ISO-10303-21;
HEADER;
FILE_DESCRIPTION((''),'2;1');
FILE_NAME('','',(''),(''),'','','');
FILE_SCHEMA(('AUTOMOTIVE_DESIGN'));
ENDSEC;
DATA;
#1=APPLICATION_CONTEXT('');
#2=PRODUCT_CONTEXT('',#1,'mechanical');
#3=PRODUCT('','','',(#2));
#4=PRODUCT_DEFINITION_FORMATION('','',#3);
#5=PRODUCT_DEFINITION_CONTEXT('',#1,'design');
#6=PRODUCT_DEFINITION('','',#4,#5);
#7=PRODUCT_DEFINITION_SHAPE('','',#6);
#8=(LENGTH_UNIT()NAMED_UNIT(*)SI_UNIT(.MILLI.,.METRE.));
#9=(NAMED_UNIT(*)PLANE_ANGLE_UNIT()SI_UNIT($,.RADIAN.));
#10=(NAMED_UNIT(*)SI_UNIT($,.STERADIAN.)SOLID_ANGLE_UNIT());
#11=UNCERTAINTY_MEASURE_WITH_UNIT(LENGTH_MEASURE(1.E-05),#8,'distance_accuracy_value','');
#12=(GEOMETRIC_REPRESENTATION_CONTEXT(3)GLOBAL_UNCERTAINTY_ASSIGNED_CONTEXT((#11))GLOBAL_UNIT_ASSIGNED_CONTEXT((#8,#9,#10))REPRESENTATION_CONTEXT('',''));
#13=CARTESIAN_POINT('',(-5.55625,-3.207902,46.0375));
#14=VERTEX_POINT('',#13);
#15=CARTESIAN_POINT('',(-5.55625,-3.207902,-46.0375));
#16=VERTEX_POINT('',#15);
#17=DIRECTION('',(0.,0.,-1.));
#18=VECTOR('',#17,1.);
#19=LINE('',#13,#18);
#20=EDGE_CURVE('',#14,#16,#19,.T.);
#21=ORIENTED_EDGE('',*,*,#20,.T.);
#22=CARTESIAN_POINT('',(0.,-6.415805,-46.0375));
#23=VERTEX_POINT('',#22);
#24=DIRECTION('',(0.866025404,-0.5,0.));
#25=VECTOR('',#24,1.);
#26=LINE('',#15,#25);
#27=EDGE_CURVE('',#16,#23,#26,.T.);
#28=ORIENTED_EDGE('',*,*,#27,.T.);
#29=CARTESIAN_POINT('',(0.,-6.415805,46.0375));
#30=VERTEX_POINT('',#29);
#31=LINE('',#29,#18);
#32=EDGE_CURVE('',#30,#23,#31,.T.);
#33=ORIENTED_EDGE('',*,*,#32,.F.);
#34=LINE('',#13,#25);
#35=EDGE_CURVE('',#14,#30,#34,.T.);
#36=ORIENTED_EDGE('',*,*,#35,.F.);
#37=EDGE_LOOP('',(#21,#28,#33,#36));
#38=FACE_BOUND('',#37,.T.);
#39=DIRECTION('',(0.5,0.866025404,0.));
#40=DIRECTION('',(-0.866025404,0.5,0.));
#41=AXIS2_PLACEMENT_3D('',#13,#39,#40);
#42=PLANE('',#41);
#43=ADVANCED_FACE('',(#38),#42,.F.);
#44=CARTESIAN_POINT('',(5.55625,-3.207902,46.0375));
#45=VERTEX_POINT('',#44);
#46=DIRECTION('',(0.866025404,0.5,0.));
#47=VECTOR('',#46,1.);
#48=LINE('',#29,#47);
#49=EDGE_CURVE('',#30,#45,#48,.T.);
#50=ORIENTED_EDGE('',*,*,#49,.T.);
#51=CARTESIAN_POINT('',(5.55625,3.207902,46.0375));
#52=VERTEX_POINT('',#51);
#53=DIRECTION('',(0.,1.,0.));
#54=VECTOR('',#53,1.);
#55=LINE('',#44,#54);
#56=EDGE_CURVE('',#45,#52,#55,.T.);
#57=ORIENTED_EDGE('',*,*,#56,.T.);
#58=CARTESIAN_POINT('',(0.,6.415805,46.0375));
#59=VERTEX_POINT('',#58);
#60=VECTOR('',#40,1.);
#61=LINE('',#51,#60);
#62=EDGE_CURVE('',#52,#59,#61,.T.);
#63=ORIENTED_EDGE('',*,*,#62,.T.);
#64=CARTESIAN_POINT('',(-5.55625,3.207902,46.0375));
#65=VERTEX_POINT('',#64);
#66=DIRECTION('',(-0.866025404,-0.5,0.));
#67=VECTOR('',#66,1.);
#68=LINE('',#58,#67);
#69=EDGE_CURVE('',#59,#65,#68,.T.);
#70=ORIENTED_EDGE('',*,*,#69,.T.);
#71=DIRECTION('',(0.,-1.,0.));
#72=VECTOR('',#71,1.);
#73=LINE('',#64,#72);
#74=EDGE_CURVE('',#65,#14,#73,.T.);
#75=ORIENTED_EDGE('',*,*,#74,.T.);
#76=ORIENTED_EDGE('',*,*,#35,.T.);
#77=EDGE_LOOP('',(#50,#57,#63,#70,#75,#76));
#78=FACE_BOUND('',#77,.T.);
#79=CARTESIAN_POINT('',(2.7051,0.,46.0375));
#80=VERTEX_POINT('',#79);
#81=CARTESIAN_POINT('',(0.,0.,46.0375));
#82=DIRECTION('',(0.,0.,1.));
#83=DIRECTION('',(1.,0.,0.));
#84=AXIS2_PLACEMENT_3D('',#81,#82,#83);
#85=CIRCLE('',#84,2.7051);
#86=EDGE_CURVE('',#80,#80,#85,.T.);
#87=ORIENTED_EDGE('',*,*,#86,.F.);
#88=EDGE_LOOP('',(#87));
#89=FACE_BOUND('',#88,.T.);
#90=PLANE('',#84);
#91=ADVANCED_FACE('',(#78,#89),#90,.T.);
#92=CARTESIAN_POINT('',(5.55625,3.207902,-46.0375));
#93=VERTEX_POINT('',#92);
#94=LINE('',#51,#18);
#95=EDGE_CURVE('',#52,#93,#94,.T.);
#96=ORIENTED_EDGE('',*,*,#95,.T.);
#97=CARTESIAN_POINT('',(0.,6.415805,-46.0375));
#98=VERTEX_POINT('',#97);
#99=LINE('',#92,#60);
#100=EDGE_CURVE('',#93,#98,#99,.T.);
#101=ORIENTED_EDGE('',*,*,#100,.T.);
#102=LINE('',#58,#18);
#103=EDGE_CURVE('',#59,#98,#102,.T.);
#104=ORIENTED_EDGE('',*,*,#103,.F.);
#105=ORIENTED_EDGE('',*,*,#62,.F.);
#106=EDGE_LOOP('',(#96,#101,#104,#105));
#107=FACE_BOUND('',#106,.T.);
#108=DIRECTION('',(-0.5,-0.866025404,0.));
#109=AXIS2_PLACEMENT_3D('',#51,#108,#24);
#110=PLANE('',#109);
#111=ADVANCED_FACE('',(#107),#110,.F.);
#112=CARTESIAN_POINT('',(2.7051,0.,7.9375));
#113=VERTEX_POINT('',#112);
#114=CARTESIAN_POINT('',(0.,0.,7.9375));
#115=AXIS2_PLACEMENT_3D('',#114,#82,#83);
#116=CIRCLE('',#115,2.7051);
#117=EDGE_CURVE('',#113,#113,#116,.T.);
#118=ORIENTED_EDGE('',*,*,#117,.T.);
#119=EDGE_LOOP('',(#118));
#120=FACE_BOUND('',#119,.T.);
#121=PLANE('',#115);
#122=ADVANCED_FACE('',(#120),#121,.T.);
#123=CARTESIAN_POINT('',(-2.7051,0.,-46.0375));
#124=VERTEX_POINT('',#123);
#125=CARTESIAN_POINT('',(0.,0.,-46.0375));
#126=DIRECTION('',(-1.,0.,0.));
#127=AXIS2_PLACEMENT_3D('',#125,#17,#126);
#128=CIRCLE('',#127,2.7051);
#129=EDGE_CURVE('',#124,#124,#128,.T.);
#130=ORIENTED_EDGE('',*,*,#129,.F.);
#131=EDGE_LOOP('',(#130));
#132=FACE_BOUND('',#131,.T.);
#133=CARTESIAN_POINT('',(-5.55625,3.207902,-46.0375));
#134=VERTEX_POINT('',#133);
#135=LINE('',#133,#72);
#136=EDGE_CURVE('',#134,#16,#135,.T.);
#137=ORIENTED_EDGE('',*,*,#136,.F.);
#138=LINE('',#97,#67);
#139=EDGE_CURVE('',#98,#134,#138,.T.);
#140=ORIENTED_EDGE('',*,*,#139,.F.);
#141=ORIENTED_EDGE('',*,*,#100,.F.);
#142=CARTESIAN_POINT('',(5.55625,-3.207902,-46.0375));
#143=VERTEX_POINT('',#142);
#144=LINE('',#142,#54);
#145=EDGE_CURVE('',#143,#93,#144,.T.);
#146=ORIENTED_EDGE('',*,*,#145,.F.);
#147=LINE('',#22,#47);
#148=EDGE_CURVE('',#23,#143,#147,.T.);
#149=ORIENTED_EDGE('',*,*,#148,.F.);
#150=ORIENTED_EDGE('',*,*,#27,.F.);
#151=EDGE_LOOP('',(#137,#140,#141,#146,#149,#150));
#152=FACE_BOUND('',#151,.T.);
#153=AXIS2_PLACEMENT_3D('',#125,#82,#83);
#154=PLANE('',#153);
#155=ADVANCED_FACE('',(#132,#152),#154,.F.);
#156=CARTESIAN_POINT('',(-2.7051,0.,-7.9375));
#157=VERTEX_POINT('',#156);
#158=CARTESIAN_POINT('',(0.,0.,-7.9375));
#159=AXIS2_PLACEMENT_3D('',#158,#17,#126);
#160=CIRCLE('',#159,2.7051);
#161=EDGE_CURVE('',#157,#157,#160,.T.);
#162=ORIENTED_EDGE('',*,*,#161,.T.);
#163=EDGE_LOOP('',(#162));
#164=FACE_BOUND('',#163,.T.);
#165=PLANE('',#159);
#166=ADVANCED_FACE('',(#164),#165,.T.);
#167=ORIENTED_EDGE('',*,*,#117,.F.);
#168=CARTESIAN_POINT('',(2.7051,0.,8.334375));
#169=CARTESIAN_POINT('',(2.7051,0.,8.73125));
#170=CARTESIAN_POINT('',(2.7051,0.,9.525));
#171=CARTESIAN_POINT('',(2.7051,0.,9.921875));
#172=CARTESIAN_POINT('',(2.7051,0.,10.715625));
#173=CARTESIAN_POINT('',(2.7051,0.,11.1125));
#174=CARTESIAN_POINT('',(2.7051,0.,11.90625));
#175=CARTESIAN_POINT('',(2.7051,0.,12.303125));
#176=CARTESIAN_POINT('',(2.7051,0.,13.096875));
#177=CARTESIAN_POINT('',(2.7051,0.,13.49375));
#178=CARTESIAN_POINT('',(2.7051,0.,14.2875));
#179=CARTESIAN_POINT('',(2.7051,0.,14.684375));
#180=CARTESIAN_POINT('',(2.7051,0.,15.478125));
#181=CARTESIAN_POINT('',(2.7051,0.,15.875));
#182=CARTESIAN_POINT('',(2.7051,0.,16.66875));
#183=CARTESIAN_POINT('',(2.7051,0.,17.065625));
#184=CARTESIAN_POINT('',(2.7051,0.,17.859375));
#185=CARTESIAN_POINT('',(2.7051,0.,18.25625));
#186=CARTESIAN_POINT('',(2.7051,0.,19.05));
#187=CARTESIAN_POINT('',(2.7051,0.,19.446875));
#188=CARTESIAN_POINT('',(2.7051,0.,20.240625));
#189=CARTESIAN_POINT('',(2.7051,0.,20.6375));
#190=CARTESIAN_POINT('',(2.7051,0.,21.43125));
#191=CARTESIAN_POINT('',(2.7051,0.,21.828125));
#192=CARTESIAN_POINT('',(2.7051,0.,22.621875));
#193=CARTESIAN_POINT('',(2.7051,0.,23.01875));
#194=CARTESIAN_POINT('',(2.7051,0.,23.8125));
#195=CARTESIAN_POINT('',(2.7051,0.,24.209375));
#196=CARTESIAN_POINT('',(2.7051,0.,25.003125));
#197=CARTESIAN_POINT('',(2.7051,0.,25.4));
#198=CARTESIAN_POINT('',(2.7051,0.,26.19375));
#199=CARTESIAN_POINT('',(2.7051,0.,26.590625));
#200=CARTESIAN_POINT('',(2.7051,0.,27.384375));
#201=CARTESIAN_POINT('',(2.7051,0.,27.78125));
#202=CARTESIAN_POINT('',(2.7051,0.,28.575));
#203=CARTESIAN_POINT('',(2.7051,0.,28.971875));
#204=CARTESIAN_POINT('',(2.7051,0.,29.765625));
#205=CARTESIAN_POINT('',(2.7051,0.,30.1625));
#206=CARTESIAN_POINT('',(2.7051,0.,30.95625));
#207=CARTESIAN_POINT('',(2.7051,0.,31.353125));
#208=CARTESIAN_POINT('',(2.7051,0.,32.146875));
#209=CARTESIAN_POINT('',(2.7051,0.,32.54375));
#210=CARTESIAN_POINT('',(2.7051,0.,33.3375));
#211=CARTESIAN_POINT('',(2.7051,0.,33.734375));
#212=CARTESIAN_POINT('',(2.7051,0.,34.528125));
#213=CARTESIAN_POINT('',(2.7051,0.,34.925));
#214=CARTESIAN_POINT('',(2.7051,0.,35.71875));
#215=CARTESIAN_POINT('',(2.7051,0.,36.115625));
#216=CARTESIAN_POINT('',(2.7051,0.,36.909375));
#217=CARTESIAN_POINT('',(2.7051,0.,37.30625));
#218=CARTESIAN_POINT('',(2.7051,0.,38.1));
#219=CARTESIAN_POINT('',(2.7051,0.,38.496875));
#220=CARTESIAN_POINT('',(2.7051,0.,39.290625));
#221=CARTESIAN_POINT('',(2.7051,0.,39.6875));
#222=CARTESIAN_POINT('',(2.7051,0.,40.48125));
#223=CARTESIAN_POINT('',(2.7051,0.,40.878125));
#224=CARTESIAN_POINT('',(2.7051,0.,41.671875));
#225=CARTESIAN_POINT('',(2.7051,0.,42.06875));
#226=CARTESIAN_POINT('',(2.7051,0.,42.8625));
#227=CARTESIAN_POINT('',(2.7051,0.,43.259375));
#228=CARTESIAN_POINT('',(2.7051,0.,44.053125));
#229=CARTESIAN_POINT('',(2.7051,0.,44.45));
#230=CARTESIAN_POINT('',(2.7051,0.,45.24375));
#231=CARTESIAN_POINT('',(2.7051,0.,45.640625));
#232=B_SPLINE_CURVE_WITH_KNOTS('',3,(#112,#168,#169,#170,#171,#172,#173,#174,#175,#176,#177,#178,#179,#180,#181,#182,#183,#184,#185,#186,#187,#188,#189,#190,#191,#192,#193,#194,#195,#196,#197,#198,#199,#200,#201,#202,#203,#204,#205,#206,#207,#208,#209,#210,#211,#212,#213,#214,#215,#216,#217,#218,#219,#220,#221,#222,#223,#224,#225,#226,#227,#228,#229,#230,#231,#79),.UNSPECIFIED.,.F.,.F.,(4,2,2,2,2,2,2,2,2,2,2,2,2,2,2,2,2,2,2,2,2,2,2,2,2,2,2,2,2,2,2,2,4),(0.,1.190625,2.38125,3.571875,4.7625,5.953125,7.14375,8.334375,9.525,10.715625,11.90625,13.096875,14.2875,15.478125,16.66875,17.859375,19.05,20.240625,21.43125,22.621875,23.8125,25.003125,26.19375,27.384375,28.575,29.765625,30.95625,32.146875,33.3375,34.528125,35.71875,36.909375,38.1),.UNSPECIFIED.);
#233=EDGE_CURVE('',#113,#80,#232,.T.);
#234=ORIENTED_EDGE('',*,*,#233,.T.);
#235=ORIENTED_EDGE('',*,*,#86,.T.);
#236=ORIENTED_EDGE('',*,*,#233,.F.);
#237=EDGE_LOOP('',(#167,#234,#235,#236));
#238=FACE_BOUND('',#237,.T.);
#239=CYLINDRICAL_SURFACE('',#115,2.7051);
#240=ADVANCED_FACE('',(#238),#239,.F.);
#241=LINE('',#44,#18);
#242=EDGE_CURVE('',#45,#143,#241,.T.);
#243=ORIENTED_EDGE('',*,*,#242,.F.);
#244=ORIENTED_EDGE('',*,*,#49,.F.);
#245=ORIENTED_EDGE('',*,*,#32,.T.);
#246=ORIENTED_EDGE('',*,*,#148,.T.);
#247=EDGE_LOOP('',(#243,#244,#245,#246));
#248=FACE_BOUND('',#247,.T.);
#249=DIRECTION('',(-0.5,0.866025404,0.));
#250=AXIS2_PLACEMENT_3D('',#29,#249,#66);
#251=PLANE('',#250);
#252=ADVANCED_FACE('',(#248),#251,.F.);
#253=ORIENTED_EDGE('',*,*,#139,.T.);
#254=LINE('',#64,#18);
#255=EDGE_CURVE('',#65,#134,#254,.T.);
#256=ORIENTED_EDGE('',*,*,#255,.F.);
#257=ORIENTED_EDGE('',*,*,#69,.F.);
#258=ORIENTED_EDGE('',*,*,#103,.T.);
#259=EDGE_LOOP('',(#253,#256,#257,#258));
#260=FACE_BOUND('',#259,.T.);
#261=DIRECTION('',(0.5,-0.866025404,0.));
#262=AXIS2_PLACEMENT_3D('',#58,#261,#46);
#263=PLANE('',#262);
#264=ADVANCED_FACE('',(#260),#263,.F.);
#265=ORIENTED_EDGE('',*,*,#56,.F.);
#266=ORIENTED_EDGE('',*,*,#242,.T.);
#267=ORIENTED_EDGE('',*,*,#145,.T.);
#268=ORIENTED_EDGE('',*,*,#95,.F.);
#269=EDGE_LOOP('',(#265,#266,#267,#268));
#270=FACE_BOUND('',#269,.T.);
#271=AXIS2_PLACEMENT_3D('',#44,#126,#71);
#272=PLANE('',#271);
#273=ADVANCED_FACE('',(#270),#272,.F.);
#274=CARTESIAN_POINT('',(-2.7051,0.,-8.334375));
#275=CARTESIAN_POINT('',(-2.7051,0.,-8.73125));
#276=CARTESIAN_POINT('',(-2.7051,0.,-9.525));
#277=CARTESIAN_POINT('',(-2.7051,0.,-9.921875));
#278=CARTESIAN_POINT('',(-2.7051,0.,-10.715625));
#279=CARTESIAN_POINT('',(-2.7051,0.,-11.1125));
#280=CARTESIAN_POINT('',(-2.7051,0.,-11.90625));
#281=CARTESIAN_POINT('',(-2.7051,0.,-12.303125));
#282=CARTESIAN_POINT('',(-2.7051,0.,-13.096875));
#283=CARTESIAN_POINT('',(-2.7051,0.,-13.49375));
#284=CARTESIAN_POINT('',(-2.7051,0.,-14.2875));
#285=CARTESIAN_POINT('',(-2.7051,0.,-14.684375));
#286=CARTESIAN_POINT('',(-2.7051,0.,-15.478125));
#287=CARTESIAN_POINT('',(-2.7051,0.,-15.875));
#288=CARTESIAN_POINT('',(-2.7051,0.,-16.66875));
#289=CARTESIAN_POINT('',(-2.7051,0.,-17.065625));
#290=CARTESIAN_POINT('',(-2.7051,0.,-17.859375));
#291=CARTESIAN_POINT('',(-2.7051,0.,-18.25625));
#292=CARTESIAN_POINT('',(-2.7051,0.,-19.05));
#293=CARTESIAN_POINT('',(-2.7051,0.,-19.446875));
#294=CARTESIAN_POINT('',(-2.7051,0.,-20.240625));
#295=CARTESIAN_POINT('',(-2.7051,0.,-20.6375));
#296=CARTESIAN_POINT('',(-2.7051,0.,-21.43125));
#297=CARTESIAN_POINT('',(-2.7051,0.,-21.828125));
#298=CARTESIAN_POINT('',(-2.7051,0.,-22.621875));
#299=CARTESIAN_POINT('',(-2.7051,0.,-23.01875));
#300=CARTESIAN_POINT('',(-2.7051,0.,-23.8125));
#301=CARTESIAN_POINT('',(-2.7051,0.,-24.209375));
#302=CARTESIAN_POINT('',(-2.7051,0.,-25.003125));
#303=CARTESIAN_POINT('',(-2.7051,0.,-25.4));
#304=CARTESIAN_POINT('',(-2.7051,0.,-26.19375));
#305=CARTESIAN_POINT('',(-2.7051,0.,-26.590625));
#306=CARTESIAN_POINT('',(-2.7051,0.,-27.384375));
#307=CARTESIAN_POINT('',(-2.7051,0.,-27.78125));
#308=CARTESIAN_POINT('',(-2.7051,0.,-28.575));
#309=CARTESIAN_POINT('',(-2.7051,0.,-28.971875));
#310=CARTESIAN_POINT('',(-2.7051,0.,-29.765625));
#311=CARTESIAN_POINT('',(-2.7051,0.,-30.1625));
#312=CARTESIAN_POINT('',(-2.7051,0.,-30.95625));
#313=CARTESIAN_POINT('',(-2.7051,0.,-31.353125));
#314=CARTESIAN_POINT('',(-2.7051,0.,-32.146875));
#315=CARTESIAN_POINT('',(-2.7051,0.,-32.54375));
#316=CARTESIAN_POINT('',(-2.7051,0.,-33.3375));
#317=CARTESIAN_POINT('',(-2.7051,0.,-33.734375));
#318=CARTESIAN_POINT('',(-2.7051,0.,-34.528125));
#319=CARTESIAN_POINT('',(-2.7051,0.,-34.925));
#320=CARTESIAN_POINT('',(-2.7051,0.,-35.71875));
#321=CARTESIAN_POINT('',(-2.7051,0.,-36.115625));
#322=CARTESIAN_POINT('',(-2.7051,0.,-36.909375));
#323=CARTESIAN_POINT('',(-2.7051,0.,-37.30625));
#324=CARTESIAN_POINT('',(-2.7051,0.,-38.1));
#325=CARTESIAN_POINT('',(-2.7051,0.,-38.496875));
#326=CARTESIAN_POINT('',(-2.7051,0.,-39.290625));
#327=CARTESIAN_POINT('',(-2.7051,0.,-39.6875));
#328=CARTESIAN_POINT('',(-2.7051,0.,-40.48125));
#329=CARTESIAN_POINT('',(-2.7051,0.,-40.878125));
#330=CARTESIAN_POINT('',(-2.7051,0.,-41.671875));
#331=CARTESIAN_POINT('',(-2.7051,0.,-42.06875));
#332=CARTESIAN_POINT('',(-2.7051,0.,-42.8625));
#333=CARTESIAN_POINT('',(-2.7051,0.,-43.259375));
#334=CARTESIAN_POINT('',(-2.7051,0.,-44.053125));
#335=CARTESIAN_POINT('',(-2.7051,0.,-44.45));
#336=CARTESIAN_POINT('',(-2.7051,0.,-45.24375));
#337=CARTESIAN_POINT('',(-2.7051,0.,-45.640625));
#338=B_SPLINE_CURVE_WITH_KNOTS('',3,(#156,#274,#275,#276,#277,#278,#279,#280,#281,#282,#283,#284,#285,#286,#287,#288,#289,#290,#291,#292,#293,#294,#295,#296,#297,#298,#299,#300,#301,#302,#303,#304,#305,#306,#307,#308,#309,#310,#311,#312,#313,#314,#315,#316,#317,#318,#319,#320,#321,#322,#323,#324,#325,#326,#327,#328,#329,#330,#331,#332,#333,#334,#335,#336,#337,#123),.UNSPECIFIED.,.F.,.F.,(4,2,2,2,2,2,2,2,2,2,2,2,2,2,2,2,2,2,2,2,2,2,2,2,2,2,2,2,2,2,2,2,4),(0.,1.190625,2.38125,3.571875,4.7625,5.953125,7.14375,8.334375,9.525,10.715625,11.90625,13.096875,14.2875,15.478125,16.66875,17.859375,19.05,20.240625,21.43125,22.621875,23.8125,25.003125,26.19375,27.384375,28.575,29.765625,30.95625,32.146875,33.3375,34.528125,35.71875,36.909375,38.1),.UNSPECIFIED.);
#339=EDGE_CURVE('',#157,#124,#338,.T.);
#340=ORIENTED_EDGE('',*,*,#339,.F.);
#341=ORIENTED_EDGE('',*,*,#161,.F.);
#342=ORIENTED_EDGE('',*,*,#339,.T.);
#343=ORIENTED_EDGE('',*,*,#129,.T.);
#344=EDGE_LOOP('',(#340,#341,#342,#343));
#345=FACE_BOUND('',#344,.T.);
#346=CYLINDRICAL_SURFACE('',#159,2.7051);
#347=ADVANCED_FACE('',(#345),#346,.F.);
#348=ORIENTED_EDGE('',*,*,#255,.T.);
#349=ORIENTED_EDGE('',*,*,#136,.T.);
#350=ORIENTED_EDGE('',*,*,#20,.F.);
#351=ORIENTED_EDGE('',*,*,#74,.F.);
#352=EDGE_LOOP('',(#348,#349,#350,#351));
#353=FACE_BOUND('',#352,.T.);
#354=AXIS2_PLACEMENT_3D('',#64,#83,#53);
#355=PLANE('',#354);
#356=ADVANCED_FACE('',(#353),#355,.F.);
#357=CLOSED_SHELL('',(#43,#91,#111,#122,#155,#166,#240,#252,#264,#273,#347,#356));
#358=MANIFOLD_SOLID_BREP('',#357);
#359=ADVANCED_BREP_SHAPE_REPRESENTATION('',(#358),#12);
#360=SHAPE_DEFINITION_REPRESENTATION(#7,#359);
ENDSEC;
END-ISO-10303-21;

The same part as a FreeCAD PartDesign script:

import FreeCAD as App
import Part
import Sketcher
from FreeCAD import Vector
Q = App.Units.Quantity


def add_polygon(sketch, points):
    """Adds a closed chain of lines whose ends are joined by coincident constraints."""
    first, n = sketch.GeometryCount, len(points)
    for a, b in zip(points, points[1:] + points[:1]):
        sketch.addGeometry(Part.LineSegment(App.Vector(*a, 0), App.Vector(*b, 0)), False)
    for i in range(n):
        sketch.addConstraint(Sketcher.Constraint("Coincident", first + i, 2, first + (i + 1) % n, 1))

doc = App.newDocument("Part")
params = doc.addObject("Spreadsheet::Sheet", "Params")
for row, (alias, value) in enumerate([
    ("pad1_length", "3.625 in"),
    ("sketch2_diameter", "0.213 in"),
    ("pocket1_length", "1.5 in"),
    ("sketch3_diameter", "0.213 in"),
    ("pocket2_length", "1.5 in"),
], start=1):
    params.set(f"A{row}", alias)
    params.set(f"B{row}", "=" + value)
    params.setAlias(f"B{row}", alias)

body = doc.addObject("PartDesign::Body", "Body")

sketch1 = body.newObject("Sketcher::SketchObject", "Sketch")
sketch1.AttachmentSupport = (doc.getObject("XY_Plane"), [""])
sketch1.MapMode = "FlatFace"
add_polygon(sketch1, [(0, 6), (-6, 3), (-6, -3), (0, -6), (6, -3), (6, 3)])
sketch1.addConstraint(Sketcher.Constraint("Vertical", 1))
sketch1.addConstraint(Sketcher.Constraint("Vertical", 4))
sketch1.addConstraint(Sketcher.Constraint("Symmetric", 0, 2, 3, 2, -1, 1))
sketch1.addConstraint(Sketcher.Constraint("Symmetric", 2, 2, 5, 2, -1, 1))
sketch1.addConstraint(Sketcher.Constraint("PointOnObject", 2, 2, -2))
sketch1.addConstraint(Sketcher.Constraint("Parallel", 2, 5))
sketch1.addConstraint(Sketcher.Constraint("Horizontal", 1, 2, 3, 2))
sketch1.addConstraint(Sketcher.Constraint("Angle", 0, Q("-150 deg")))
sketch1.addConstraint(Sketcher.Constraint("DistanceX", 0, 2, -1, 1, Q("0.21875 in")))
sketch1.addConstraint(Sketcher.Constraint("DistanceY", 1, 2, 1, 1, 6.415805))
pad1 = body.newObject("PartDesign::Pad", "Pad")
pad1.Profile = sketch1
pad1.setExpression("Length", "Params.pad1_length")
pad1.Midplane = True

sketch2 = body.newObject("Sketcher::SketchObject", "Sketch001")
sketch2.AttachmentSupport = (doc.getObject("XY_Plane"), [""])
sketch2.MapMode = "FlatFace"
sketch2.AttachmentOffset = App.Placement(Vector(0, 0, 1.8125 * 25.4), App.Rotation())
sketch2.addGeometry(Part.Circle(Vector(0, 0, 0), Vector(0, 0, 1), 2.7), False)
sketch2.addConstraint(Sketcher.Constraint("Coincident", 0, 3, -1, 1))
sketch2.addConstraint(Sketcher.Constraint("Diameter", 0, Q("0.213 in")))
sketch2.setExpression("Constraints[1]", "Params.sketch2_diameter")
pocket1 = body.newObject("PartDesign::Pocket", "Pocket")
pocket1.Profile = sketch2
pocket1.setExpression("Length", "Params.pocket1_length")

sketch3 = body.newObject("Sketcher::SketchObject", "Sketch002")
sketch3.AttachmentSupport = (doc.getObject("XY_Plane"), [""])
sketch3.MapMode = "FlatFace"
sketch3.AttachmentOffset = App.Placement(Vector(0, 0, -0.3125 * 25.4), App.Rotation())
sketch3.addGeometry(Part.Circle(Vector(0, 0, 0), Vector(0, 0, 1), 2.7), False)
sketch3.addConstraint(Sketcher.Constraint("Coincident", 0, 3, -1, 1))
sketch3.addConstraint(Sketcher.Constraint("Diameter", 0, Q("0.213 in")))
sketch3.setExpression("Constraints[1]", "Params.sketch3_diameter")
pocket2 = body.newObject("PartDesign::Pocket", "Pocket001")
pocket2.Profile = sketch3
pocket2.setExpression("Length", "Params.pocket2_length")

doc.recompute()
